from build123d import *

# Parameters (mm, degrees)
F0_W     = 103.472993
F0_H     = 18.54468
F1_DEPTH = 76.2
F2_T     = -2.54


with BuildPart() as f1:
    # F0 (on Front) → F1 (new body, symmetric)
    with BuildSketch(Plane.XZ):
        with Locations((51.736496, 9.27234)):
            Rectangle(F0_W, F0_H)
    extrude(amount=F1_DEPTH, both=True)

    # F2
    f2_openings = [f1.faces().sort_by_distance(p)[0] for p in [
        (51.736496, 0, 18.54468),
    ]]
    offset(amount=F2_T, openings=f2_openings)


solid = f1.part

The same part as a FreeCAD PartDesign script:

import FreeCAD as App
import Part
import Sketcher
from FreeCAD import Vector
Q = App.Units.Quantity


def faces_at(feature, points):
    """Names of the faces that lie closest to the given points."""
    faces = feature.Shape.Faces
    near = lambda p: min(range(len(faces)), key=lambda i: faces[i].distToShape(Part.Vertex(*p))[0])
    return sorted({f"Face{near(p) + 1}" for p in points})


def add_polygon(sketch, points):
    """Adds a closed chain of lines whose ends are joined by coincident constraints."""
    first, n = sketch.GeometryCount, len(points)
    for a, b in zip(points, points[1:] + points[:1]):
        sketch.addGeometry(Part.LineSegment(App.Vector(*a, 0), App.Vector(*b, 0)), False)
    for i in range(n):
        sketch.addConstraint(Sketcher.Constraint("Coincident", first + i, 2, first + (i + 1) % n, 1))

doc = App.newDocument("Part")
body = doc.addObject("PartDesign::Body", "Body")

# Sketch on XZ plane
sketch1 = body.newObject("Sketcher::SketchObject", "Sketch")
sketch1.AttachmentSupport = (doc.getObject("XZ_Plane"), [""])
sketch1.MapMode = "FlatFace"
add_polygon(sketch1, [(0, 19), (0, 0), (103, 0), (103, 19)])  # lines 0-3
sketch1.addConstraint(Sketcher.Constraint("Vertical", 0))
sketch1.addConstraint(Sketcher.Constraint("Horizontal", 1))
sketch1.addConstraint(Sketcher.Constraint("Vertical", 2))
sketch1.addConstraint(Sketcher.Constraint("Horizontal", 3))
sketch1.addConstraint(Sketcher.Constraint("Coincident", 0, 2, -1, 1))
sketch1.addConstraint(Sketcher.Constraint("DistanceY", 0, 2, 0, 1, 18.54468))
sketch1.addConstraint(Sketcher.Constraint("DistanceX", 1, 1, 1, 2, 103.472993))
pad1 = body.newObject("PartDesign::Pad", "Pad")
pad1.Profile = sketch1
pad1.Length = Q("6 in")
pad1.Midplane = True
doc.recompute()

thickness = body.newObject("PartDesign::Thickness", "Thickness")
thickness.Base = (pad1, faces_at(pad1, [(51.736, 0, 18.545)]))
thickness.Value = Q("0.1 in")
thickness.Reversed = True
thickness.Join = "Arc"

doc.recompute()
